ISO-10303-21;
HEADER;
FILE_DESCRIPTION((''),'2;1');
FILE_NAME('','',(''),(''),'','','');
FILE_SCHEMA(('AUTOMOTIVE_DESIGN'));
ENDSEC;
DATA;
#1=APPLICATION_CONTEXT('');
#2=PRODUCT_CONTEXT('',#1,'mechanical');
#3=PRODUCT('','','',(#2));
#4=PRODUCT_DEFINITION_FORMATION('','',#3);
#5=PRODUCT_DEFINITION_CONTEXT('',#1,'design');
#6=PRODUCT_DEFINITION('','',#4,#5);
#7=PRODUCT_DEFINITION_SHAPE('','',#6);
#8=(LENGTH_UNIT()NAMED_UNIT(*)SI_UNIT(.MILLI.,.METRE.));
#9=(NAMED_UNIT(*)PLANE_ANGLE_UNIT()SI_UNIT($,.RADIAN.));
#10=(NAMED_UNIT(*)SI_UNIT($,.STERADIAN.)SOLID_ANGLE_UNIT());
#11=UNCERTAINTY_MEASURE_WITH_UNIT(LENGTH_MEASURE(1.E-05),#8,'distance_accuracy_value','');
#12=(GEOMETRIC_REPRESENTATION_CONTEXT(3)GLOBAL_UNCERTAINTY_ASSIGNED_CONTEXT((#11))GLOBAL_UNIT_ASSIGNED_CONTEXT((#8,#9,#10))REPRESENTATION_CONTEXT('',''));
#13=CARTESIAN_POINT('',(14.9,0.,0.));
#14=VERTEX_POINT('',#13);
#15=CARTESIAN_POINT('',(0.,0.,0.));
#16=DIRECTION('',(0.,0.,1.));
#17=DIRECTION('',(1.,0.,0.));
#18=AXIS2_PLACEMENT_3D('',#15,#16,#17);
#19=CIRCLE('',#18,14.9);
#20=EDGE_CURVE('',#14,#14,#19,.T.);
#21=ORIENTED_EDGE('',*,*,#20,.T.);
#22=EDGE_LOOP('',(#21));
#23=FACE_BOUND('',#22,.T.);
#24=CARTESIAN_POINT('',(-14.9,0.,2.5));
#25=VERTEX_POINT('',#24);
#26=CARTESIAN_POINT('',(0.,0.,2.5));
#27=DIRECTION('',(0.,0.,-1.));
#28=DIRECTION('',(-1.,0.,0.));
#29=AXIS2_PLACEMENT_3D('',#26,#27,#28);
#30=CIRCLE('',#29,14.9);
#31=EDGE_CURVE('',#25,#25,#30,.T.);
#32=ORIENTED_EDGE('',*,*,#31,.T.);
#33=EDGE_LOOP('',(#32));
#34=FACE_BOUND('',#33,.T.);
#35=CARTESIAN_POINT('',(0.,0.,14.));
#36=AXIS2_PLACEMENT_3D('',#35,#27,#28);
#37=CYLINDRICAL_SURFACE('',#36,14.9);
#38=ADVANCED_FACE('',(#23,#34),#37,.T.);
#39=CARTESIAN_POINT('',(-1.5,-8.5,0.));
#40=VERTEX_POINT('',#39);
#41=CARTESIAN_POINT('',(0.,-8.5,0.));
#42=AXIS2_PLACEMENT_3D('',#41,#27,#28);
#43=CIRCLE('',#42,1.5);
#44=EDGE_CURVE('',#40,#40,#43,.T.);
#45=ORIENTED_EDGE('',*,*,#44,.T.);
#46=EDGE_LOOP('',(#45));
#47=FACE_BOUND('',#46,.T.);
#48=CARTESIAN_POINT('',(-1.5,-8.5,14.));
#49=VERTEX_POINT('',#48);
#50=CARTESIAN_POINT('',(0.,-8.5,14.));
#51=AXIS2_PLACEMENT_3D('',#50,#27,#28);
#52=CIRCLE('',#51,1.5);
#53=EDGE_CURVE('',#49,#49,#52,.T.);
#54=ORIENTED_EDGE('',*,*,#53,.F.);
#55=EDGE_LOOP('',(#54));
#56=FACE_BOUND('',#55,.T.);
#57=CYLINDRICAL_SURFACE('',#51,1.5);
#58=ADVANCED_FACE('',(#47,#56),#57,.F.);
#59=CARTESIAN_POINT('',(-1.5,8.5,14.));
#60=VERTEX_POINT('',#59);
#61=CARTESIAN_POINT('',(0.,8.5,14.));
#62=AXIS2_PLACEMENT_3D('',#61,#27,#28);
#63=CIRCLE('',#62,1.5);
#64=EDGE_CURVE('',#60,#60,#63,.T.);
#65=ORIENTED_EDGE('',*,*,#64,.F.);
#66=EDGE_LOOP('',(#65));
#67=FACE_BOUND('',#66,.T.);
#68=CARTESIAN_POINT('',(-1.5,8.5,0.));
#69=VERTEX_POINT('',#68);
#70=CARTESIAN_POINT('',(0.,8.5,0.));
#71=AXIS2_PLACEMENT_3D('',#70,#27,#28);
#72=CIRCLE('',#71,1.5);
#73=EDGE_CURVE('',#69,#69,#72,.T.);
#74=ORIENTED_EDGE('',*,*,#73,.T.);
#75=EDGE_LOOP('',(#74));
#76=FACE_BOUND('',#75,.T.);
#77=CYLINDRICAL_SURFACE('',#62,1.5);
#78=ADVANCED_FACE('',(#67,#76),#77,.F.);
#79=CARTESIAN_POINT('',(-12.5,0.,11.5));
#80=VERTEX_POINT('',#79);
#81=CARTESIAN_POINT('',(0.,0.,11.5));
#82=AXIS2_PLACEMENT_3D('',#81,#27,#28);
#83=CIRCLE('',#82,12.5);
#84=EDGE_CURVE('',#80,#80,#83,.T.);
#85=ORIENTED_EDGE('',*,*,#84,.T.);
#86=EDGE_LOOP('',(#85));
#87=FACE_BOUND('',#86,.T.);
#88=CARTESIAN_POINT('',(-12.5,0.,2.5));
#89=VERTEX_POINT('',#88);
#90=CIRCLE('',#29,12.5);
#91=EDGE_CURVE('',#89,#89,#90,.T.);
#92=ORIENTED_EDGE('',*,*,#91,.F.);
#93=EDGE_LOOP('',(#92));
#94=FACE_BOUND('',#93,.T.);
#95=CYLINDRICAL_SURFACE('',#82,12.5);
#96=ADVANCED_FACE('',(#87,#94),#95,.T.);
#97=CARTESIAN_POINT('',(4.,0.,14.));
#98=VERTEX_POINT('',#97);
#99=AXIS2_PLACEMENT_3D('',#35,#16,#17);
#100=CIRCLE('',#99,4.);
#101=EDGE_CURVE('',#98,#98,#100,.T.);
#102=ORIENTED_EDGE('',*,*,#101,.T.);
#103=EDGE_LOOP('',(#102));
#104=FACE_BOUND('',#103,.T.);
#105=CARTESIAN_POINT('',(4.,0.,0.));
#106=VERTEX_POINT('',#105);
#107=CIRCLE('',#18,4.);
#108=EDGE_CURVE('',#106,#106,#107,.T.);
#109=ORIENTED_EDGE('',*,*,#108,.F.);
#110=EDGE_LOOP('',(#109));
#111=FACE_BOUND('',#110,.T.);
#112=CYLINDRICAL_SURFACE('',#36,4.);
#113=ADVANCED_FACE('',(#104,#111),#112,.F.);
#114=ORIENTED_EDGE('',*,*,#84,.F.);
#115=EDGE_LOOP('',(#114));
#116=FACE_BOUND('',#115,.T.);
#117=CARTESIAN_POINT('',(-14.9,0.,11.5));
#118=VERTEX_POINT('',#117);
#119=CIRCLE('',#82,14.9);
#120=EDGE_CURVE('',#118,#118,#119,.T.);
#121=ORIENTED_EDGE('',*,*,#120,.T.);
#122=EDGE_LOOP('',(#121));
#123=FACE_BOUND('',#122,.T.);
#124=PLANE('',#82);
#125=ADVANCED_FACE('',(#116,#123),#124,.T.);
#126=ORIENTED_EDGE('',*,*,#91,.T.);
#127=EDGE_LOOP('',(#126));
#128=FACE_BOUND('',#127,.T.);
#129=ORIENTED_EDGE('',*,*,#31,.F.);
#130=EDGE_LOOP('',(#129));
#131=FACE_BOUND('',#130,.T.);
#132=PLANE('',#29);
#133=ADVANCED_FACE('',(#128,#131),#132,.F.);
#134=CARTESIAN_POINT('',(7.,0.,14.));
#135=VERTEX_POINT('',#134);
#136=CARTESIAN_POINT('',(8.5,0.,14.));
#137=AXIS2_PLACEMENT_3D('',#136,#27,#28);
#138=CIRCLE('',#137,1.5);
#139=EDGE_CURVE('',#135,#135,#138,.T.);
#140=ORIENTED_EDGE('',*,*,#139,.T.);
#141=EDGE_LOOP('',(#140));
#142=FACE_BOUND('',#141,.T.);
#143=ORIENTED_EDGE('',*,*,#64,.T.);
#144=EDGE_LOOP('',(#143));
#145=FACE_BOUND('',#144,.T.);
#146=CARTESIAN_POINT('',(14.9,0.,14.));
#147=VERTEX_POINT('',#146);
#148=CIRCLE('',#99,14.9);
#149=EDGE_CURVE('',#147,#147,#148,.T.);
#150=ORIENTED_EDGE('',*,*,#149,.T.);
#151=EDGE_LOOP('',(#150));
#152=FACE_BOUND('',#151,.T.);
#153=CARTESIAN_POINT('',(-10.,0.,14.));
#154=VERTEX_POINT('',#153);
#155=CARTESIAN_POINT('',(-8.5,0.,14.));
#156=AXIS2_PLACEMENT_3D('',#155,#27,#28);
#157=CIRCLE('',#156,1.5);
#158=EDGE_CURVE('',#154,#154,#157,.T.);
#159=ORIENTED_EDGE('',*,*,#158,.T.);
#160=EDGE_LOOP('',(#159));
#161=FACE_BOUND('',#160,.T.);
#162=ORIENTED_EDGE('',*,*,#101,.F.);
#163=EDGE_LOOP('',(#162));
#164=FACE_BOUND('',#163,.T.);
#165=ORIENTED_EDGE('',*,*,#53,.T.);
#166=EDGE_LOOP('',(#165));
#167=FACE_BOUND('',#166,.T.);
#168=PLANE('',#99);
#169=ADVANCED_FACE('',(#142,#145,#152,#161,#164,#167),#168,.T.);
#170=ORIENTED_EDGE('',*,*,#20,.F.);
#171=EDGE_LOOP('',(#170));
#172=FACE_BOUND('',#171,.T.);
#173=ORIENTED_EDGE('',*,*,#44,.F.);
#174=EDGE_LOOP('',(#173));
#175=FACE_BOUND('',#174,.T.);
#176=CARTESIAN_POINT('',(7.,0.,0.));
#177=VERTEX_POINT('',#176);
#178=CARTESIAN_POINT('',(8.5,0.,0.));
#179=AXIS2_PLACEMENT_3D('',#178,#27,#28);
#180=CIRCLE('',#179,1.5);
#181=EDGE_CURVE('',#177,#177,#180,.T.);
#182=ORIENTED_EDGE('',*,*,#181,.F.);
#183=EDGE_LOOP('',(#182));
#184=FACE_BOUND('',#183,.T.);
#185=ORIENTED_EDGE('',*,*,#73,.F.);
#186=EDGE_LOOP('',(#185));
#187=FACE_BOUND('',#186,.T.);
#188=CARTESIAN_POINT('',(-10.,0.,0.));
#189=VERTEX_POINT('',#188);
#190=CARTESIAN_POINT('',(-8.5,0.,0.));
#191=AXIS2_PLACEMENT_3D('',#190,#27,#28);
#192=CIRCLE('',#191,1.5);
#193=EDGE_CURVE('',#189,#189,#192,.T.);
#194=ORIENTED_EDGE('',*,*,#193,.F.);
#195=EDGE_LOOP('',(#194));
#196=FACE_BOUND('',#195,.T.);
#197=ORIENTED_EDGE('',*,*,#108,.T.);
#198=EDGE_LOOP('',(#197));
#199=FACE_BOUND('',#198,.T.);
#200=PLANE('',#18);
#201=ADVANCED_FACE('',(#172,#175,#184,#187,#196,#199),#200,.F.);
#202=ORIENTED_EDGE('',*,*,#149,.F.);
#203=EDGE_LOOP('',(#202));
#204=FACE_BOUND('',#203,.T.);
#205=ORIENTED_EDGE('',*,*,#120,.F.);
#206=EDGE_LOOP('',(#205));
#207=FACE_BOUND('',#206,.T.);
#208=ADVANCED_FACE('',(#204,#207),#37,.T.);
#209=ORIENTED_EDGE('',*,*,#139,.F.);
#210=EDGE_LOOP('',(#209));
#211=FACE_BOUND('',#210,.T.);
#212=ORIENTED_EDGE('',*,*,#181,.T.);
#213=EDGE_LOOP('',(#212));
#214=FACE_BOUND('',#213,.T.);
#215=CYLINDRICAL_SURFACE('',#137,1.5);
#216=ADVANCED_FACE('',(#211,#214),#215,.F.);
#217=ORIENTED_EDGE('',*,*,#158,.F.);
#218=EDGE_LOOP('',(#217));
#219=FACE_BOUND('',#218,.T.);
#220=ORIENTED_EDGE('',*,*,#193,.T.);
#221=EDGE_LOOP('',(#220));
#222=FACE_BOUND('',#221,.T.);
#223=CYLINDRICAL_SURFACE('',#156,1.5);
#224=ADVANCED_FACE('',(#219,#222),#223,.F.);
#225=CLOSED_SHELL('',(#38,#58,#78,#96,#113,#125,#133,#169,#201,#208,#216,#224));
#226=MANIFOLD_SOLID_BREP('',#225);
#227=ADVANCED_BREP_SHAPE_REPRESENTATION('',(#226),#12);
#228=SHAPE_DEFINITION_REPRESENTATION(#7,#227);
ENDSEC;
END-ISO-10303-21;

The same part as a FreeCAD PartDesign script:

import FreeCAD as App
import Part
import Sketcher
Q = App.Units.Quantity

doc = App.newDocument("Part")
body = doc.addObject("PartDesign::Body", "Body")

sketch1 = body.newObject("Sketcher::SketchObject", "Sketch")
sketch1.AttachmentSupport = (doc.getObject("XY_Plane"), [""])
sketch1.MapMode = "FlatFace"
sketch1.addGeometry([
    Part.Circle(App.Vector(0, 0, 0), App.Vector(0, 0, 1), 14.9),
    Part.Circle(App.Vector(0, 0, 0), App.Vector(0, 0, 1), 4),
], False)
sketch1.addConstraint([
    Sketcher.Constraint("Coincident", 0, 3, -1, 1),
    Sketcher.Constraint("Coincident", 1, 3, -1, 1),
    Sketcher.Constraint("Diameter", 1, Q("8 mm")),
    Sketcher.Constraint("Diameter", 0, Q("29.8 mm")),
])
pad1 = body.newObject("PartDesign::Pad", "Pad")
pad1.Profile = sketch1
pad1.Length = 14

sketch2 = body.newObject("Sketcher::SketchObject", "Sketch001")
sketch2.AttachmentSupport = (doc.getObject("XY_Plane"), [""])
sketch2.MapMode = "FlatFace"
sketch2.AttachmentOffset = App.Placement(App.Vector(0, 0, 2.5), App.Rotation())
sketch2.addGeometry([
    Part.Circle(App.Vector(0, 0, 0), App.Vector(0, 0, 1), 15),
    Part.Circle(App.Vector(0, 0, 0), App.Vector(0, 0, 1), 12),
], False)
sketch2.addConstraint([
    Sketcher.Constraint("Coincident", 0, 3, -1, 1),
    Sketcher.Constraint("Coincident", 1, 3, -1, 1),
    Sketcher.Constraint("Diameter", 1, Q("25 mm")),
    Sketcher.Constraint("Diameter", 0, Q("29.8 mm")),
])
pocket1 = body.newObject("PartDesign::Pocket", "Pocket")
pocket1.Profile = sketch2
pocket1.Length = 9
pocket1.Reversed = True

sketch3 = body.newObject("Sketcher::SketchObject", "Sketch002")
sketch3.AttachmentSupport = (doc.getObject("XY_Plane"), [""])
sketch3.MapMode = "FlatFace"
sketch3.addGeometry([
    Part.Circle(App.Vector(0, 8.5, 0), App.Vector(0, 0, 1), 1.5),
    Part.Circle(App.Vector(-8.5, 0, 0), App.Vector(0, 0, 1), 1.5),
    Part.Circle(App.Vector(0, -8.5, 0), App.Vector(0, 0, 1), 1.5),
    Part.Circle(App.Vector(8.5, 0, 0), App.Vector(0, 0, 1), 1.5),
], False)
sketch3.addConstraint([
    Sketcher.Constraint("Equal", 0, 1),
    Sketcher.Constraint("Equal", 1, 2),
    Sketcher.Constraint("Equal", 2, 3),
    Sketcher.Constraint("Symmetric", 0, 3, 2, 3, -1, 1),
    Sketcher.Constraint("Symmetric", 1, 3, 3, 3, -1, 1),
    Sketcher.Constraint("PointOnObject", 0, 3, -2),
    Sketcher.Constraint("PointOnObject", 1, 3, -1),
    Sketcher.Constraint("Diameter", 0, Q("3 mm")),
    Sketcher.Constraint("DistanceY", 2, 3, 0, 3, Q("17 mm")),
    Sketcher.Constraint("DistanceX", 1, 3, 3, 3, Q("17 mm")),
])
pocket2 = body.newObject("PartDesign::Pocket", "Pocket001")
pocket2.Profile = sketch3
pocket2.Type = "ThroughAll"
pocket2.Reversed = True

doc.recompute()
